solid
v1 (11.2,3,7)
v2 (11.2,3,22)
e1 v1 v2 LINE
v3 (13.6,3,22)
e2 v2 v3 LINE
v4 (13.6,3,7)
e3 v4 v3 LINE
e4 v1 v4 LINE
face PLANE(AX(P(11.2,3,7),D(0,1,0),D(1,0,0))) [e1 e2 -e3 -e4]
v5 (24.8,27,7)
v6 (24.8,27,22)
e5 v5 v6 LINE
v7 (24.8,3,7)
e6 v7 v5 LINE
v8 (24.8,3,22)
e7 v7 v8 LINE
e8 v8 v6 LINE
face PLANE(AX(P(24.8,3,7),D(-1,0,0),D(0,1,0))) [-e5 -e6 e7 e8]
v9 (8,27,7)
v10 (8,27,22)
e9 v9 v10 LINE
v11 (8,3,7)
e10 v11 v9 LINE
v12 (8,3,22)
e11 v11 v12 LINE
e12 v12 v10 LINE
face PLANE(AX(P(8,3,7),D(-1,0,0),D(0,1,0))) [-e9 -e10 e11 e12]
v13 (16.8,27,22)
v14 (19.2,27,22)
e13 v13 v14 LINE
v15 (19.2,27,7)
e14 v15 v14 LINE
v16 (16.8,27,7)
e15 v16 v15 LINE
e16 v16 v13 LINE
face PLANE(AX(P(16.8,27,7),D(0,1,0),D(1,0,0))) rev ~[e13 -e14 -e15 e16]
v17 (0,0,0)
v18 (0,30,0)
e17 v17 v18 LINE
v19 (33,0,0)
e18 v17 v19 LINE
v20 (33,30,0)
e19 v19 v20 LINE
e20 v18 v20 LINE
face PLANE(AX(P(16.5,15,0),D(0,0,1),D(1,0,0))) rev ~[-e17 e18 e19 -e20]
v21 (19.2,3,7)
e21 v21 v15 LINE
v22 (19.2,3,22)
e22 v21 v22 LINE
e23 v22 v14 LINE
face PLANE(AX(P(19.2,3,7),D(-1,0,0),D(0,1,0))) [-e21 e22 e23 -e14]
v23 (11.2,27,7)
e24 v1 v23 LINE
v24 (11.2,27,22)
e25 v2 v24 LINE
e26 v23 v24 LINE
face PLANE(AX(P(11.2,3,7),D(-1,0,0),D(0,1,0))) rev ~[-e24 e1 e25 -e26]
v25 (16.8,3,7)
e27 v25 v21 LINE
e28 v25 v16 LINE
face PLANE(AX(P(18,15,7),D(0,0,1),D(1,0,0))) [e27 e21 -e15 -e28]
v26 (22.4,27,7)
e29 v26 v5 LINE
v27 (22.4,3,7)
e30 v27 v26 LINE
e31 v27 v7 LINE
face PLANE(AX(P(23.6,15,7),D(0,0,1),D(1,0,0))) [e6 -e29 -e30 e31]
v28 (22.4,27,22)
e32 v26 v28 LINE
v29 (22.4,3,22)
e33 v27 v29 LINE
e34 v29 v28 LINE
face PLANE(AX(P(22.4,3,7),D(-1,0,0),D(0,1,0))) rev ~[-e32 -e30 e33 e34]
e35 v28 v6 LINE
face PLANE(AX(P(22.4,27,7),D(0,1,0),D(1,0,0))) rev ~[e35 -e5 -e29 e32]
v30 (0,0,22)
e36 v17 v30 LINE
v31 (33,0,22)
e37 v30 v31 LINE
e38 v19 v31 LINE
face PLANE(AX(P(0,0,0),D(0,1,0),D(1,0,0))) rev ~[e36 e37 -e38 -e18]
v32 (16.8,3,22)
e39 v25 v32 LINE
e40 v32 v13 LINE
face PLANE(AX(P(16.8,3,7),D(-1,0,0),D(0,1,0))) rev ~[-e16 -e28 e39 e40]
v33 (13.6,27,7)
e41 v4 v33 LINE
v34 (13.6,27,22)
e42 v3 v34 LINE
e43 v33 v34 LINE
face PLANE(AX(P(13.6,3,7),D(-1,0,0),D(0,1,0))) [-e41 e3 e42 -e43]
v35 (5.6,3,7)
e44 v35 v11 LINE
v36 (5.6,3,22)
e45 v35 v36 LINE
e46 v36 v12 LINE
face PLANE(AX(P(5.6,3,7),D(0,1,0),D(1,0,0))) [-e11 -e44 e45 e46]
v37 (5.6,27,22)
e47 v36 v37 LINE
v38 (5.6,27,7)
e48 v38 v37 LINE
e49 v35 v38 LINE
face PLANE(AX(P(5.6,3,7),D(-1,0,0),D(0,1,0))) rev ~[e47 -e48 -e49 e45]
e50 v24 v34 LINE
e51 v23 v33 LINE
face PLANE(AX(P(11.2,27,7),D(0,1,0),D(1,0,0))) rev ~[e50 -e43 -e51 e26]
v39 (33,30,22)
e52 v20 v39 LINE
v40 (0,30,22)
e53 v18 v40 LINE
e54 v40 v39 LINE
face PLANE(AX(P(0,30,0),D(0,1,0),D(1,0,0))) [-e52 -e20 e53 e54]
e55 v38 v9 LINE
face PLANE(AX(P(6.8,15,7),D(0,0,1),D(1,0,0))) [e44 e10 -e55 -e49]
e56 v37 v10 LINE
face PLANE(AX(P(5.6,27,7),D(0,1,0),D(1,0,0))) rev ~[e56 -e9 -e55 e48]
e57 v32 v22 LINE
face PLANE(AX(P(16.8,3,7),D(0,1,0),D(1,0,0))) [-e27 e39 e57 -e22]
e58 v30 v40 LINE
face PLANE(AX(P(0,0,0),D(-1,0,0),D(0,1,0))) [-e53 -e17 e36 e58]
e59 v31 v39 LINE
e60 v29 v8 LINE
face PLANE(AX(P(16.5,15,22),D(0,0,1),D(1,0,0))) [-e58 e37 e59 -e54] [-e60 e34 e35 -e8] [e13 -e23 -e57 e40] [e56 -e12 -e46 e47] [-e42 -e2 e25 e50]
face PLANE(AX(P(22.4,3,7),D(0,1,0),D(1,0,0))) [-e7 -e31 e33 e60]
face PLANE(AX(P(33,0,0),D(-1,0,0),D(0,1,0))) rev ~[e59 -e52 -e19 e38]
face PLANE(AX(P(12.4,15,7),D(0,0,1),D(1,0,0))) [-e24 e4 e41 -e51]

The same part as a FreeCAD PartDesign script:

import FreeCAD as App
import Part
import Sketcher

doc = App.newDocument("Part")
body = doc.addObject("PartDesign::Body", "Body")

# Sketch on XY plane
sketch1 = body.newObject("Sketcher::SketchObject", "Sketch")
sketch1.AttachmentSupport = (doc.getObject("XY_Plane"), [""])
sketch1.MapMode = "FlatFace"
sketch1.AttachmentOffset = App.Placement(App.Vector(0, 0, 7), App.Rotation())
sketch1.addGeometry(Part.LineSegment(App.Vector(22.4, 27, 0), App.Vector(22.4, 3, 0)), False)
sketch1.addGeometry(Part.LineSegment(App.Vector(22.4, 3, 0), App.Vector(24.8, 3, 0)), False)
sketch1.addGeometry(Part.LineSegment(App.Vector(24.8, 3, 0), App.Vector(24.8, 27, 0)), False)
sketch1.addGeometry(Part.LineSegment(App.Vector(24.8, 27, 0), App.Vector(22.4, 27, 0)), False)
sketch1.addConstraint(Sketcher.Constraint("Coincident", 0, 2, 1, 1))
sketch1.addConstraint(Sketcher.Constraint("Coincident", 1, 2, 2, 1))
sketch1.addConstraint(Sketcher.Constraint("Coincident", 2, 2, 3, 1))
sketch1.addConstraint(Sketcher.Constraint("Coincident", 3, 2, 0, 1))
sketch1.addConstraint(Sketcher.Constraint("Vertical", 0))
sketch1.addConstraint(Sketcher.Constraint("Horizontal", 1))
sketch1.addConstraint(Sketcher.Constraint("Vertical", 2))
sketch1.addConstraint(Sketcher.Constraint("Horizontal", 3))
sketch1.addConstraint(Sketcher.Constraint("DistanceY", 0, 2, 0, 1, 24.0))
sketch1.addConstraint(Sketcher.Constraint("DistanceX", 1, 1, 1, 2, 2.4))
sketch1.addConstraint(Sketcher.Constraint("DistanceY", -1, 1, 0, 2, 3.0))
sketch1.addConstraint(Sketcher.Constraint("DistanceX", -1, 1, 0, 2, 22.4))
pad1 = body.newObject("PartDesign::Pad", "Pad")
pad1.Profile = sketch1
pad1.Length = 15
body2 = doc.addObject("PartDesign::Body", "Body001")
body2.AllowCompound = True

# Sketch on XY plane
sketch2 = body2.newObject("Sketcher::SketchObject", "Sketch001")
sketch2.AttachmentSupport = (doc.getObject("XY_Plane001"), [""])
sketch2.MapMode = "FlatFace"
sketch2.AttachmentOffset = App.Placement(App.Vector(0, 0, 7), App.Rotation())
sketch2.addGeometry(Part.LineSegment(App.Vector(16.8, 27, 0), App.Vector(16.8, 3, 0)), False)
sketch2.addGeometry(Part.LineSegment(App.Vector(16.8, 3, 0), App.Vector(19.2, 3, 0)), False)
sketch2.addGeometry(Part.LineSegment(App.Vector(19.2, 3, 0), App.Vector(19.2, 27, 0)), False)
sketch2.addGeometry(Part.LineSegment(App.Vector(19.2, 27, 0), App.Vector(16.8, 27, 0)), False)
sketch2.addConstraint(Sketcher.Constraint("Coincident", 0, 2, 1, 1))
sketch2.addConstraint(Sketcher.Constraint("Coincident", 1, 2, 2, 1))
sketch2.addConstraint(Sketcher.Constraint("Coincident", 2, 2, 3, 1))
sketch2.addConstraint(Sketcher.Constraint("Coincident", 3, 2, 0, 1))
sketch2.addConstraint(Sketcher.Constraint("Vertical", 0))
sketch2.addConstraint(Sketcher.Constraint("Horizontal", 1))
sketch2.addConstraint(Sketcher.Constraint("Vertical", 2))
sketch2.addConstraint(Sketcher.Constraint("Horizontal", 3))
sketch2.addConstraint(Sketcher.Constraint("DistanceY", 0, 2, 0, 1, 24.0))
sketch2.addConstraint(Sketcher.Constraint("DistanceX", 1, 1, 1, 2, 2.4))
sketch2.addConstraint(Sketcher.Constraint("DistanceY", -1, 1, 0, 2, 3.0))
sketch2.addConstraint(Sketcher.Constraint("DistanceX", -1, 1, 0, 2, 16.8))
pad2 = body2.newObject("PartDesign::Pad", "Pad001")
pad2.Profile = sketch2
pad2.Length = 15
doc.recompute()

boolean = body2.newObject("PartDesign::Boolean", "Boolean")
boolean.Type = "Fuse"
boolean.addObjects([body])
body3 = doc.addObject("PartDesign::Body", "Body002")

# Sketch on XY plane
sketch3 = body3.newObject("Sketcher::SketchObject", "Sketch002")
sketch3.AttachmentSupport = (doc.getObject("XY_Plane002"), [""])
sketch3.MapMode = "FlatFace"
sketch3.AttachmentOffset = App.Placement(App.Vector(0, 0, 7), App.Rotation())
sketch3.addGeometry(Part.LineSegment(App.Vector(5.6, 27, 0), App.Vector(5.6, 3, 0)), False)
sketch3.addGeometry(Part.LineSegment(App.Vector(5.6, 3, 0), App.Vector(8, 3, 0)), False)
sketch3.addGeometry(Part.LineSegment(App.Vector(8, 3, 0), App.Vector(8, 27, 0)), False)
sketch3.addGeometry(Part.LineSegment(App.Vector(8, 27, 0), App.Vector(5.6, 27, 0)), False)
sketch3.addConstraint(Sketcher.Constraint("Coincident", 0, 2, 1, 1))
sketch3.addConstraint(Sketcher.Constraint("Coincident", 1, 2, 2, 1))
sketch3.addConstraint(Sketcher.Constraint("Coincident", 2, 2, 3, 1))
sketch3.addConstraint(Sketcher.Constraint("Coincident", 3, 2, 0, 1))
sketch3.addConstraint(Sketcher.Constraint("Vertical", 0))
sketch3.addConstraint(Sketcher.Constraint("Horizontal", 1))
sketch3.addConstraint(Sketcher.Constraint("Vertical", 2))
sketch3.addConstraint(Sketcher.Constraint("Horizontal", 3))
sketch3.addConstraint(Sketcher.Constraint("DistanceY", 0, 2, 0, 1, 24.0))
sketch3.addConstraint(Sketcher.Constraint("DistanceX", 1, 1, 1, 2, 2.4))
sketch3.addConstraint(Sketcher.Constraint("DistanceY", -1, 1, 0, 2, 3.0))
sketch3.addConstraint(Sketcher.Constraint("DistanceX", -1, 1, 1, 2, 8.0))
pad3 = body3.newObject("PartDesign::Pad", "Pad002")
pad3.Profile = sketch3
pad3.Length = 15
body4 = doc.addObject("PartDesign::Body", "Body003")
body4.AllowCompound = True

# Sketch on XY plane
sketch4 = body4.newObject("Sketcher::SketchObject", "Sketch003")
sketch4.AttachmentSupport = (doc.getObject("XY_Plane003"), [""])
sketch4.MapMode = "FlatFace"
sketch4.AttachmentOffset = App.Placement(App.Vector(0, 0, 7), App.Rotation())
sketch4.addGeometry(Part.LineSegment(App.Vector(11.2, 27, 0), App.Vector(11.2, 3, 0)), False)
sketch4.addGeometry(Part.LineSegment(App.Vector(11.2, 3, 0), App.Vector(13.6, 3, 0)), False)
sketch4.addGeometry(Part.LineSegment(App.Vector(13.6, 3, 0), App.Vector(13.6, 27, 0)), False)
sketch4.addGeometry(Part.LineSegment(App.Vector(13.6, 27, 0), App.Vector(11.2, 27, 0)), False)
sketch4.addConstraint(Sketcher.Constraint("Coincident", 0, 2, 1, 1))
sketch4.addConstraint(Sketcher.Constraint("Coincident", 1, 2, 2, 1))
sketch4.addConstraint(Sketcher.Constraint("Coincident", 2, 2, 3, 1))
sketch4.addConstraint(Sketcher.Constraint("Coincident", 3, 2, 0, 1))
sketch4.addConstraint(Sketcher.Constraint("Vertical", 0))
sketch4.addConstraint(Sketcher.Constraint("Horizontal", 1))
sketch4.addConstraint(Sketcher.Constraint("Vertical", 2))
sketch4.addConstraint(Sketcher.Constraint("Horizontal", 3))
sketch4.addConstraint(Sketcher.Constraint("DistanceY", 0, 2, 0, 1, 24.0))
sketch4.addConstraint(Sketcher.Constraint("DistanceX", 1, 1, 1, 2, 2.4))
sketch4.addConstraint(Sketcher.Constraint("DistanceY", -1, 1, 0, 2, 3.0))
sketch4.addConstraint(Sketcher.Constraint("DistanceX", -1, 1, 0, 2, 11.2))
pad4 = body4.newObject("PartDesign::Pad", "Pad003")
pad4.Profile = sketch4
pad4.Length = 15
doc.recompute()

boolean2 = body4.newObject("PartDesign::Boolean", "Boolean001")
boolean2.Type = "Fuse"
boolean2.addObjects([body3])
doc.recompute()

boolean3 = body4.newObject("PartDesign::Boolean", "Boolean002")
boolean3.Type = "Fuse"
boolean3.addObjects([body2])
body5 = doc.addObject("PartDesign::Body", "Body004")

# Sketch on XY plane
sketch5 = body5.newObject("Sketcher::SketchObject", "Sketch004")
sketch5.AttachmentSupport = (doc.getObject("XY_Plane004"), [""])
sketch5.MapMode = "FlatFace"
sketch5.addGeometry(Part.LineSegment(App.Vector(0, 30, 0), App.Vector(0, 0, 0)), False)
sketch5.addGeometry(Part.LineSegment(App.Vector(0, 0, 0), App.Vector(33, 0, 0)), False)
sketch5.addGeometry(Part.LineSegment(App.Vector(33, 0, 0), App.Vector(33, 30, 0)), False)
sketch5.addGeometry(Part.LineSegment(App.Vector(33, 30, 0), App.Vector(0, 30, 0)), False)
sketch5.addConstraint(Sketcher.Constraint("Coincident", 0, 2, 1, 1))
sketch5.addConstraint(Sketcher.Constraint("Coincident", 1, 2, 2, 1))
sketch5.addConstraint(Sketcher.Constraint("Coincident", 2, 2, 3, 1))
sketch5.addConstraint(Sketcher.Constraint("Coincident", 3, 2, 0, 1))
sketch5.addConstraint(Sketcher.Constraint("Vertical", 0))
sketch5.addConstraint(Sketcher.Constraint("Horizontal", 1))
sketch5.addConstraint(Sketcher.Constraint("Vertical", 2))
sketch5.addConstraint(Sketcher.Constraint("Horizontal", 3))
sketch5.addConstraint(Sketcher.Constraint("Coincident", 0, 2, -1, 1))
sketch5.addConstraint(Sketcher.Constraint("DistanceX", 1, 1, 1, 2, 33.0))
sketch5.addConstraint(Sketcher.Constraint("DistanceY", 0, 2, 0, 1, 30.0))
pad5 = body5.newObject("PartDesign::Pad", "Pad004")
pad5.Profile = sketch5
pad5.Length = 22
doc.recompute()

boolean4 = body5.newObject("PartDesign::Boolean", "Boolean003")
boolean4.Type = "Cut"
boolean4.addObjects([body4])

doc.recompute()
